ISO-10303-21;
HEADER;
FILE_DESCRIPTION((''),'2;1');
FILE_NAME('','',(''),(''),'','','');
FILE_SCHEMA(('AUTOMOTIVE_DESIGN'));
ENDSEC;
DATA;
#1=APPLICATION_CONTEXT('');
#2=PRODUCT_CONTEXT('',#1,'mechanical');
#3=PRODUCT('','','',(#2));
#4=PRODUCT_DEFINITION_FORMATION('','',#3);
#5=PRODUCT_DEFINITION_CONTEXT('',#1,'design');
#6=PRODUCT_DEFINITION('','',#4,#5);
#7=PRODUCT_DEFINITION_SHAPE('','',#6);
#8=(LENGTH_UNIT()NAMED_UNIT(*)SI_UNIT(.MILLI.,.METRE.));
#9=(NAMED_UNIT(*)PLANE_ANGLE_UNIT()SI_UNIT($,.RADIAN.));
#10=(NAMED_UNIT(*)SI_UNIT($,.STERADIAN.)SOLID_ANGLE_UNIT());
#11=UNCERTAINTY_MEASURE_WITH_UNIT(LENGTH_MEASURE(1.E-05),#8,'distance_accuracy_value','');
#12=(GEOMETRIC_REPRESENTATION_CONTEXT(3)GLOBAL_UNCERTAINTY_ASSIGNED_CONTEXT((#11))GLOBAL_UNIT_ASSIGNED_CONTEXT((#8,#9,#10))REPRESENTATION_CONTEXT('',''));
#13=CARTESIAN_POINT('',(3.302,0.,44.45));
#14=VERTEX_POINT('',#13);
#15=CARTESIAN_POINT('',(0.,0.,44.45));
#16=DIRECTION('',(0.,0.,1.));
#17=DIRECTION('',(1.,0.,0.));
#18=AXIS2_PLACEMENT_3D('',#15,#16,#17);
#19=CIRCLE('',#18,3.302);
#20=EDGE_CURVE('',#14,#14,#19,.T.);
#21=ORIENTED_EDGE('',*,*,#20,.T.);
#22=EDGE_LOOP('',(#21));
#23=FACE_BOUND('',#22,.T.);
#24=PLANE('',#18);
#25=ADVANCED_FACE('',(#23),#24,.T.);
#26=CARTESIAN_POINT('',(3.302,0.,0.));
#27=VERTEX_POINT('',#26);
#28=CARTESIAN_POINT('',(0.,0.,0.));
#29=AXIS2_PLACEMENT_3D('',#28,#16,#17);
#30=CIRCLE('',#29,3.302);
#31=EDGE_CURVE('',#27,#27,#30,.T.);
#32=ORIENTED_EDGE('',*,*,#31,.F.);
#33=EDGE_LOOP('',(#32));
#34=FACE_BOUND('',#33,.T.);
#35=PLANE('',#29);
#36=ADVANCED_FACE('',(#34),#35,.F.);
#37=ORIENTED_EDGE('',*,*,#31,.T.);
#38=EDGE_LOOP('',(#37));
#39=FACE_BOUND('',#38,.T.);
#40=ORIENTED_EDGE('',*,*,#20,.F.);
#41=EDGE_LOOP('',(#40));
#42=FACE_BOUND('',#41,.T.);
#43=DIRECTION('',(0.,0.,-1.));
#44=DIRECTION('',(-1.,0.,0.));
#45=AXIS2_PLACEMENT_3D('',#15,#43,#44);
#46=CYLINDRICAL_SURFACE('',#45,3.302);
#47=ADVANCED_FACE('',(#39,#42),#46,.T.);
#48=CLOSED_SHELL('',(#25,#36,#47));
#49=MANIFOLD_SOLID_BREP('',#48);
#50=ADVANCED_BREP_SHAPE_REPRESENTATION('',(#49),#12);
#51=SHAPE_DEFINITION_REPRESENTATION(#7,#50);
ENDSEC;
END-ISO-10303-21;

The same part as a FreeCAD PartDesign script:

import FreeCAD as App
import Part
import Sketcher

V = App.Vector
Q = App.Units.Quantity

doc = App.newDocument("Part")
body = doc.addObject("PartDesign::Body", "Body")

# Sketch on XY plane
sketch1 = doc.addObject("Sketcher::SketchObject", "Sketch")
body.addObject(sketch1)
sketch1.AttachmentSupport = (doc.XY_Plane, [""])
sketch1.MapMode = "FlatFace"
sketch1.addGeometry(Part.Circle(V(0, 0, 0), V(0, 0, 1), 3.302), False)
sketch1.addConstraint([
    Sketcher.Constraint("Coincident", 0, 3, -1, 1),
    Sketcher.Constraint("Diameter", 0, Q("0.26 in")),
])
pad1 = doc.addObject("PartDesign::Pad", "Pad")
body.addObject(pad1)
pad1.Profile = sketch1
pad1.Length = Q("1.75 in")

doc.recompute()
